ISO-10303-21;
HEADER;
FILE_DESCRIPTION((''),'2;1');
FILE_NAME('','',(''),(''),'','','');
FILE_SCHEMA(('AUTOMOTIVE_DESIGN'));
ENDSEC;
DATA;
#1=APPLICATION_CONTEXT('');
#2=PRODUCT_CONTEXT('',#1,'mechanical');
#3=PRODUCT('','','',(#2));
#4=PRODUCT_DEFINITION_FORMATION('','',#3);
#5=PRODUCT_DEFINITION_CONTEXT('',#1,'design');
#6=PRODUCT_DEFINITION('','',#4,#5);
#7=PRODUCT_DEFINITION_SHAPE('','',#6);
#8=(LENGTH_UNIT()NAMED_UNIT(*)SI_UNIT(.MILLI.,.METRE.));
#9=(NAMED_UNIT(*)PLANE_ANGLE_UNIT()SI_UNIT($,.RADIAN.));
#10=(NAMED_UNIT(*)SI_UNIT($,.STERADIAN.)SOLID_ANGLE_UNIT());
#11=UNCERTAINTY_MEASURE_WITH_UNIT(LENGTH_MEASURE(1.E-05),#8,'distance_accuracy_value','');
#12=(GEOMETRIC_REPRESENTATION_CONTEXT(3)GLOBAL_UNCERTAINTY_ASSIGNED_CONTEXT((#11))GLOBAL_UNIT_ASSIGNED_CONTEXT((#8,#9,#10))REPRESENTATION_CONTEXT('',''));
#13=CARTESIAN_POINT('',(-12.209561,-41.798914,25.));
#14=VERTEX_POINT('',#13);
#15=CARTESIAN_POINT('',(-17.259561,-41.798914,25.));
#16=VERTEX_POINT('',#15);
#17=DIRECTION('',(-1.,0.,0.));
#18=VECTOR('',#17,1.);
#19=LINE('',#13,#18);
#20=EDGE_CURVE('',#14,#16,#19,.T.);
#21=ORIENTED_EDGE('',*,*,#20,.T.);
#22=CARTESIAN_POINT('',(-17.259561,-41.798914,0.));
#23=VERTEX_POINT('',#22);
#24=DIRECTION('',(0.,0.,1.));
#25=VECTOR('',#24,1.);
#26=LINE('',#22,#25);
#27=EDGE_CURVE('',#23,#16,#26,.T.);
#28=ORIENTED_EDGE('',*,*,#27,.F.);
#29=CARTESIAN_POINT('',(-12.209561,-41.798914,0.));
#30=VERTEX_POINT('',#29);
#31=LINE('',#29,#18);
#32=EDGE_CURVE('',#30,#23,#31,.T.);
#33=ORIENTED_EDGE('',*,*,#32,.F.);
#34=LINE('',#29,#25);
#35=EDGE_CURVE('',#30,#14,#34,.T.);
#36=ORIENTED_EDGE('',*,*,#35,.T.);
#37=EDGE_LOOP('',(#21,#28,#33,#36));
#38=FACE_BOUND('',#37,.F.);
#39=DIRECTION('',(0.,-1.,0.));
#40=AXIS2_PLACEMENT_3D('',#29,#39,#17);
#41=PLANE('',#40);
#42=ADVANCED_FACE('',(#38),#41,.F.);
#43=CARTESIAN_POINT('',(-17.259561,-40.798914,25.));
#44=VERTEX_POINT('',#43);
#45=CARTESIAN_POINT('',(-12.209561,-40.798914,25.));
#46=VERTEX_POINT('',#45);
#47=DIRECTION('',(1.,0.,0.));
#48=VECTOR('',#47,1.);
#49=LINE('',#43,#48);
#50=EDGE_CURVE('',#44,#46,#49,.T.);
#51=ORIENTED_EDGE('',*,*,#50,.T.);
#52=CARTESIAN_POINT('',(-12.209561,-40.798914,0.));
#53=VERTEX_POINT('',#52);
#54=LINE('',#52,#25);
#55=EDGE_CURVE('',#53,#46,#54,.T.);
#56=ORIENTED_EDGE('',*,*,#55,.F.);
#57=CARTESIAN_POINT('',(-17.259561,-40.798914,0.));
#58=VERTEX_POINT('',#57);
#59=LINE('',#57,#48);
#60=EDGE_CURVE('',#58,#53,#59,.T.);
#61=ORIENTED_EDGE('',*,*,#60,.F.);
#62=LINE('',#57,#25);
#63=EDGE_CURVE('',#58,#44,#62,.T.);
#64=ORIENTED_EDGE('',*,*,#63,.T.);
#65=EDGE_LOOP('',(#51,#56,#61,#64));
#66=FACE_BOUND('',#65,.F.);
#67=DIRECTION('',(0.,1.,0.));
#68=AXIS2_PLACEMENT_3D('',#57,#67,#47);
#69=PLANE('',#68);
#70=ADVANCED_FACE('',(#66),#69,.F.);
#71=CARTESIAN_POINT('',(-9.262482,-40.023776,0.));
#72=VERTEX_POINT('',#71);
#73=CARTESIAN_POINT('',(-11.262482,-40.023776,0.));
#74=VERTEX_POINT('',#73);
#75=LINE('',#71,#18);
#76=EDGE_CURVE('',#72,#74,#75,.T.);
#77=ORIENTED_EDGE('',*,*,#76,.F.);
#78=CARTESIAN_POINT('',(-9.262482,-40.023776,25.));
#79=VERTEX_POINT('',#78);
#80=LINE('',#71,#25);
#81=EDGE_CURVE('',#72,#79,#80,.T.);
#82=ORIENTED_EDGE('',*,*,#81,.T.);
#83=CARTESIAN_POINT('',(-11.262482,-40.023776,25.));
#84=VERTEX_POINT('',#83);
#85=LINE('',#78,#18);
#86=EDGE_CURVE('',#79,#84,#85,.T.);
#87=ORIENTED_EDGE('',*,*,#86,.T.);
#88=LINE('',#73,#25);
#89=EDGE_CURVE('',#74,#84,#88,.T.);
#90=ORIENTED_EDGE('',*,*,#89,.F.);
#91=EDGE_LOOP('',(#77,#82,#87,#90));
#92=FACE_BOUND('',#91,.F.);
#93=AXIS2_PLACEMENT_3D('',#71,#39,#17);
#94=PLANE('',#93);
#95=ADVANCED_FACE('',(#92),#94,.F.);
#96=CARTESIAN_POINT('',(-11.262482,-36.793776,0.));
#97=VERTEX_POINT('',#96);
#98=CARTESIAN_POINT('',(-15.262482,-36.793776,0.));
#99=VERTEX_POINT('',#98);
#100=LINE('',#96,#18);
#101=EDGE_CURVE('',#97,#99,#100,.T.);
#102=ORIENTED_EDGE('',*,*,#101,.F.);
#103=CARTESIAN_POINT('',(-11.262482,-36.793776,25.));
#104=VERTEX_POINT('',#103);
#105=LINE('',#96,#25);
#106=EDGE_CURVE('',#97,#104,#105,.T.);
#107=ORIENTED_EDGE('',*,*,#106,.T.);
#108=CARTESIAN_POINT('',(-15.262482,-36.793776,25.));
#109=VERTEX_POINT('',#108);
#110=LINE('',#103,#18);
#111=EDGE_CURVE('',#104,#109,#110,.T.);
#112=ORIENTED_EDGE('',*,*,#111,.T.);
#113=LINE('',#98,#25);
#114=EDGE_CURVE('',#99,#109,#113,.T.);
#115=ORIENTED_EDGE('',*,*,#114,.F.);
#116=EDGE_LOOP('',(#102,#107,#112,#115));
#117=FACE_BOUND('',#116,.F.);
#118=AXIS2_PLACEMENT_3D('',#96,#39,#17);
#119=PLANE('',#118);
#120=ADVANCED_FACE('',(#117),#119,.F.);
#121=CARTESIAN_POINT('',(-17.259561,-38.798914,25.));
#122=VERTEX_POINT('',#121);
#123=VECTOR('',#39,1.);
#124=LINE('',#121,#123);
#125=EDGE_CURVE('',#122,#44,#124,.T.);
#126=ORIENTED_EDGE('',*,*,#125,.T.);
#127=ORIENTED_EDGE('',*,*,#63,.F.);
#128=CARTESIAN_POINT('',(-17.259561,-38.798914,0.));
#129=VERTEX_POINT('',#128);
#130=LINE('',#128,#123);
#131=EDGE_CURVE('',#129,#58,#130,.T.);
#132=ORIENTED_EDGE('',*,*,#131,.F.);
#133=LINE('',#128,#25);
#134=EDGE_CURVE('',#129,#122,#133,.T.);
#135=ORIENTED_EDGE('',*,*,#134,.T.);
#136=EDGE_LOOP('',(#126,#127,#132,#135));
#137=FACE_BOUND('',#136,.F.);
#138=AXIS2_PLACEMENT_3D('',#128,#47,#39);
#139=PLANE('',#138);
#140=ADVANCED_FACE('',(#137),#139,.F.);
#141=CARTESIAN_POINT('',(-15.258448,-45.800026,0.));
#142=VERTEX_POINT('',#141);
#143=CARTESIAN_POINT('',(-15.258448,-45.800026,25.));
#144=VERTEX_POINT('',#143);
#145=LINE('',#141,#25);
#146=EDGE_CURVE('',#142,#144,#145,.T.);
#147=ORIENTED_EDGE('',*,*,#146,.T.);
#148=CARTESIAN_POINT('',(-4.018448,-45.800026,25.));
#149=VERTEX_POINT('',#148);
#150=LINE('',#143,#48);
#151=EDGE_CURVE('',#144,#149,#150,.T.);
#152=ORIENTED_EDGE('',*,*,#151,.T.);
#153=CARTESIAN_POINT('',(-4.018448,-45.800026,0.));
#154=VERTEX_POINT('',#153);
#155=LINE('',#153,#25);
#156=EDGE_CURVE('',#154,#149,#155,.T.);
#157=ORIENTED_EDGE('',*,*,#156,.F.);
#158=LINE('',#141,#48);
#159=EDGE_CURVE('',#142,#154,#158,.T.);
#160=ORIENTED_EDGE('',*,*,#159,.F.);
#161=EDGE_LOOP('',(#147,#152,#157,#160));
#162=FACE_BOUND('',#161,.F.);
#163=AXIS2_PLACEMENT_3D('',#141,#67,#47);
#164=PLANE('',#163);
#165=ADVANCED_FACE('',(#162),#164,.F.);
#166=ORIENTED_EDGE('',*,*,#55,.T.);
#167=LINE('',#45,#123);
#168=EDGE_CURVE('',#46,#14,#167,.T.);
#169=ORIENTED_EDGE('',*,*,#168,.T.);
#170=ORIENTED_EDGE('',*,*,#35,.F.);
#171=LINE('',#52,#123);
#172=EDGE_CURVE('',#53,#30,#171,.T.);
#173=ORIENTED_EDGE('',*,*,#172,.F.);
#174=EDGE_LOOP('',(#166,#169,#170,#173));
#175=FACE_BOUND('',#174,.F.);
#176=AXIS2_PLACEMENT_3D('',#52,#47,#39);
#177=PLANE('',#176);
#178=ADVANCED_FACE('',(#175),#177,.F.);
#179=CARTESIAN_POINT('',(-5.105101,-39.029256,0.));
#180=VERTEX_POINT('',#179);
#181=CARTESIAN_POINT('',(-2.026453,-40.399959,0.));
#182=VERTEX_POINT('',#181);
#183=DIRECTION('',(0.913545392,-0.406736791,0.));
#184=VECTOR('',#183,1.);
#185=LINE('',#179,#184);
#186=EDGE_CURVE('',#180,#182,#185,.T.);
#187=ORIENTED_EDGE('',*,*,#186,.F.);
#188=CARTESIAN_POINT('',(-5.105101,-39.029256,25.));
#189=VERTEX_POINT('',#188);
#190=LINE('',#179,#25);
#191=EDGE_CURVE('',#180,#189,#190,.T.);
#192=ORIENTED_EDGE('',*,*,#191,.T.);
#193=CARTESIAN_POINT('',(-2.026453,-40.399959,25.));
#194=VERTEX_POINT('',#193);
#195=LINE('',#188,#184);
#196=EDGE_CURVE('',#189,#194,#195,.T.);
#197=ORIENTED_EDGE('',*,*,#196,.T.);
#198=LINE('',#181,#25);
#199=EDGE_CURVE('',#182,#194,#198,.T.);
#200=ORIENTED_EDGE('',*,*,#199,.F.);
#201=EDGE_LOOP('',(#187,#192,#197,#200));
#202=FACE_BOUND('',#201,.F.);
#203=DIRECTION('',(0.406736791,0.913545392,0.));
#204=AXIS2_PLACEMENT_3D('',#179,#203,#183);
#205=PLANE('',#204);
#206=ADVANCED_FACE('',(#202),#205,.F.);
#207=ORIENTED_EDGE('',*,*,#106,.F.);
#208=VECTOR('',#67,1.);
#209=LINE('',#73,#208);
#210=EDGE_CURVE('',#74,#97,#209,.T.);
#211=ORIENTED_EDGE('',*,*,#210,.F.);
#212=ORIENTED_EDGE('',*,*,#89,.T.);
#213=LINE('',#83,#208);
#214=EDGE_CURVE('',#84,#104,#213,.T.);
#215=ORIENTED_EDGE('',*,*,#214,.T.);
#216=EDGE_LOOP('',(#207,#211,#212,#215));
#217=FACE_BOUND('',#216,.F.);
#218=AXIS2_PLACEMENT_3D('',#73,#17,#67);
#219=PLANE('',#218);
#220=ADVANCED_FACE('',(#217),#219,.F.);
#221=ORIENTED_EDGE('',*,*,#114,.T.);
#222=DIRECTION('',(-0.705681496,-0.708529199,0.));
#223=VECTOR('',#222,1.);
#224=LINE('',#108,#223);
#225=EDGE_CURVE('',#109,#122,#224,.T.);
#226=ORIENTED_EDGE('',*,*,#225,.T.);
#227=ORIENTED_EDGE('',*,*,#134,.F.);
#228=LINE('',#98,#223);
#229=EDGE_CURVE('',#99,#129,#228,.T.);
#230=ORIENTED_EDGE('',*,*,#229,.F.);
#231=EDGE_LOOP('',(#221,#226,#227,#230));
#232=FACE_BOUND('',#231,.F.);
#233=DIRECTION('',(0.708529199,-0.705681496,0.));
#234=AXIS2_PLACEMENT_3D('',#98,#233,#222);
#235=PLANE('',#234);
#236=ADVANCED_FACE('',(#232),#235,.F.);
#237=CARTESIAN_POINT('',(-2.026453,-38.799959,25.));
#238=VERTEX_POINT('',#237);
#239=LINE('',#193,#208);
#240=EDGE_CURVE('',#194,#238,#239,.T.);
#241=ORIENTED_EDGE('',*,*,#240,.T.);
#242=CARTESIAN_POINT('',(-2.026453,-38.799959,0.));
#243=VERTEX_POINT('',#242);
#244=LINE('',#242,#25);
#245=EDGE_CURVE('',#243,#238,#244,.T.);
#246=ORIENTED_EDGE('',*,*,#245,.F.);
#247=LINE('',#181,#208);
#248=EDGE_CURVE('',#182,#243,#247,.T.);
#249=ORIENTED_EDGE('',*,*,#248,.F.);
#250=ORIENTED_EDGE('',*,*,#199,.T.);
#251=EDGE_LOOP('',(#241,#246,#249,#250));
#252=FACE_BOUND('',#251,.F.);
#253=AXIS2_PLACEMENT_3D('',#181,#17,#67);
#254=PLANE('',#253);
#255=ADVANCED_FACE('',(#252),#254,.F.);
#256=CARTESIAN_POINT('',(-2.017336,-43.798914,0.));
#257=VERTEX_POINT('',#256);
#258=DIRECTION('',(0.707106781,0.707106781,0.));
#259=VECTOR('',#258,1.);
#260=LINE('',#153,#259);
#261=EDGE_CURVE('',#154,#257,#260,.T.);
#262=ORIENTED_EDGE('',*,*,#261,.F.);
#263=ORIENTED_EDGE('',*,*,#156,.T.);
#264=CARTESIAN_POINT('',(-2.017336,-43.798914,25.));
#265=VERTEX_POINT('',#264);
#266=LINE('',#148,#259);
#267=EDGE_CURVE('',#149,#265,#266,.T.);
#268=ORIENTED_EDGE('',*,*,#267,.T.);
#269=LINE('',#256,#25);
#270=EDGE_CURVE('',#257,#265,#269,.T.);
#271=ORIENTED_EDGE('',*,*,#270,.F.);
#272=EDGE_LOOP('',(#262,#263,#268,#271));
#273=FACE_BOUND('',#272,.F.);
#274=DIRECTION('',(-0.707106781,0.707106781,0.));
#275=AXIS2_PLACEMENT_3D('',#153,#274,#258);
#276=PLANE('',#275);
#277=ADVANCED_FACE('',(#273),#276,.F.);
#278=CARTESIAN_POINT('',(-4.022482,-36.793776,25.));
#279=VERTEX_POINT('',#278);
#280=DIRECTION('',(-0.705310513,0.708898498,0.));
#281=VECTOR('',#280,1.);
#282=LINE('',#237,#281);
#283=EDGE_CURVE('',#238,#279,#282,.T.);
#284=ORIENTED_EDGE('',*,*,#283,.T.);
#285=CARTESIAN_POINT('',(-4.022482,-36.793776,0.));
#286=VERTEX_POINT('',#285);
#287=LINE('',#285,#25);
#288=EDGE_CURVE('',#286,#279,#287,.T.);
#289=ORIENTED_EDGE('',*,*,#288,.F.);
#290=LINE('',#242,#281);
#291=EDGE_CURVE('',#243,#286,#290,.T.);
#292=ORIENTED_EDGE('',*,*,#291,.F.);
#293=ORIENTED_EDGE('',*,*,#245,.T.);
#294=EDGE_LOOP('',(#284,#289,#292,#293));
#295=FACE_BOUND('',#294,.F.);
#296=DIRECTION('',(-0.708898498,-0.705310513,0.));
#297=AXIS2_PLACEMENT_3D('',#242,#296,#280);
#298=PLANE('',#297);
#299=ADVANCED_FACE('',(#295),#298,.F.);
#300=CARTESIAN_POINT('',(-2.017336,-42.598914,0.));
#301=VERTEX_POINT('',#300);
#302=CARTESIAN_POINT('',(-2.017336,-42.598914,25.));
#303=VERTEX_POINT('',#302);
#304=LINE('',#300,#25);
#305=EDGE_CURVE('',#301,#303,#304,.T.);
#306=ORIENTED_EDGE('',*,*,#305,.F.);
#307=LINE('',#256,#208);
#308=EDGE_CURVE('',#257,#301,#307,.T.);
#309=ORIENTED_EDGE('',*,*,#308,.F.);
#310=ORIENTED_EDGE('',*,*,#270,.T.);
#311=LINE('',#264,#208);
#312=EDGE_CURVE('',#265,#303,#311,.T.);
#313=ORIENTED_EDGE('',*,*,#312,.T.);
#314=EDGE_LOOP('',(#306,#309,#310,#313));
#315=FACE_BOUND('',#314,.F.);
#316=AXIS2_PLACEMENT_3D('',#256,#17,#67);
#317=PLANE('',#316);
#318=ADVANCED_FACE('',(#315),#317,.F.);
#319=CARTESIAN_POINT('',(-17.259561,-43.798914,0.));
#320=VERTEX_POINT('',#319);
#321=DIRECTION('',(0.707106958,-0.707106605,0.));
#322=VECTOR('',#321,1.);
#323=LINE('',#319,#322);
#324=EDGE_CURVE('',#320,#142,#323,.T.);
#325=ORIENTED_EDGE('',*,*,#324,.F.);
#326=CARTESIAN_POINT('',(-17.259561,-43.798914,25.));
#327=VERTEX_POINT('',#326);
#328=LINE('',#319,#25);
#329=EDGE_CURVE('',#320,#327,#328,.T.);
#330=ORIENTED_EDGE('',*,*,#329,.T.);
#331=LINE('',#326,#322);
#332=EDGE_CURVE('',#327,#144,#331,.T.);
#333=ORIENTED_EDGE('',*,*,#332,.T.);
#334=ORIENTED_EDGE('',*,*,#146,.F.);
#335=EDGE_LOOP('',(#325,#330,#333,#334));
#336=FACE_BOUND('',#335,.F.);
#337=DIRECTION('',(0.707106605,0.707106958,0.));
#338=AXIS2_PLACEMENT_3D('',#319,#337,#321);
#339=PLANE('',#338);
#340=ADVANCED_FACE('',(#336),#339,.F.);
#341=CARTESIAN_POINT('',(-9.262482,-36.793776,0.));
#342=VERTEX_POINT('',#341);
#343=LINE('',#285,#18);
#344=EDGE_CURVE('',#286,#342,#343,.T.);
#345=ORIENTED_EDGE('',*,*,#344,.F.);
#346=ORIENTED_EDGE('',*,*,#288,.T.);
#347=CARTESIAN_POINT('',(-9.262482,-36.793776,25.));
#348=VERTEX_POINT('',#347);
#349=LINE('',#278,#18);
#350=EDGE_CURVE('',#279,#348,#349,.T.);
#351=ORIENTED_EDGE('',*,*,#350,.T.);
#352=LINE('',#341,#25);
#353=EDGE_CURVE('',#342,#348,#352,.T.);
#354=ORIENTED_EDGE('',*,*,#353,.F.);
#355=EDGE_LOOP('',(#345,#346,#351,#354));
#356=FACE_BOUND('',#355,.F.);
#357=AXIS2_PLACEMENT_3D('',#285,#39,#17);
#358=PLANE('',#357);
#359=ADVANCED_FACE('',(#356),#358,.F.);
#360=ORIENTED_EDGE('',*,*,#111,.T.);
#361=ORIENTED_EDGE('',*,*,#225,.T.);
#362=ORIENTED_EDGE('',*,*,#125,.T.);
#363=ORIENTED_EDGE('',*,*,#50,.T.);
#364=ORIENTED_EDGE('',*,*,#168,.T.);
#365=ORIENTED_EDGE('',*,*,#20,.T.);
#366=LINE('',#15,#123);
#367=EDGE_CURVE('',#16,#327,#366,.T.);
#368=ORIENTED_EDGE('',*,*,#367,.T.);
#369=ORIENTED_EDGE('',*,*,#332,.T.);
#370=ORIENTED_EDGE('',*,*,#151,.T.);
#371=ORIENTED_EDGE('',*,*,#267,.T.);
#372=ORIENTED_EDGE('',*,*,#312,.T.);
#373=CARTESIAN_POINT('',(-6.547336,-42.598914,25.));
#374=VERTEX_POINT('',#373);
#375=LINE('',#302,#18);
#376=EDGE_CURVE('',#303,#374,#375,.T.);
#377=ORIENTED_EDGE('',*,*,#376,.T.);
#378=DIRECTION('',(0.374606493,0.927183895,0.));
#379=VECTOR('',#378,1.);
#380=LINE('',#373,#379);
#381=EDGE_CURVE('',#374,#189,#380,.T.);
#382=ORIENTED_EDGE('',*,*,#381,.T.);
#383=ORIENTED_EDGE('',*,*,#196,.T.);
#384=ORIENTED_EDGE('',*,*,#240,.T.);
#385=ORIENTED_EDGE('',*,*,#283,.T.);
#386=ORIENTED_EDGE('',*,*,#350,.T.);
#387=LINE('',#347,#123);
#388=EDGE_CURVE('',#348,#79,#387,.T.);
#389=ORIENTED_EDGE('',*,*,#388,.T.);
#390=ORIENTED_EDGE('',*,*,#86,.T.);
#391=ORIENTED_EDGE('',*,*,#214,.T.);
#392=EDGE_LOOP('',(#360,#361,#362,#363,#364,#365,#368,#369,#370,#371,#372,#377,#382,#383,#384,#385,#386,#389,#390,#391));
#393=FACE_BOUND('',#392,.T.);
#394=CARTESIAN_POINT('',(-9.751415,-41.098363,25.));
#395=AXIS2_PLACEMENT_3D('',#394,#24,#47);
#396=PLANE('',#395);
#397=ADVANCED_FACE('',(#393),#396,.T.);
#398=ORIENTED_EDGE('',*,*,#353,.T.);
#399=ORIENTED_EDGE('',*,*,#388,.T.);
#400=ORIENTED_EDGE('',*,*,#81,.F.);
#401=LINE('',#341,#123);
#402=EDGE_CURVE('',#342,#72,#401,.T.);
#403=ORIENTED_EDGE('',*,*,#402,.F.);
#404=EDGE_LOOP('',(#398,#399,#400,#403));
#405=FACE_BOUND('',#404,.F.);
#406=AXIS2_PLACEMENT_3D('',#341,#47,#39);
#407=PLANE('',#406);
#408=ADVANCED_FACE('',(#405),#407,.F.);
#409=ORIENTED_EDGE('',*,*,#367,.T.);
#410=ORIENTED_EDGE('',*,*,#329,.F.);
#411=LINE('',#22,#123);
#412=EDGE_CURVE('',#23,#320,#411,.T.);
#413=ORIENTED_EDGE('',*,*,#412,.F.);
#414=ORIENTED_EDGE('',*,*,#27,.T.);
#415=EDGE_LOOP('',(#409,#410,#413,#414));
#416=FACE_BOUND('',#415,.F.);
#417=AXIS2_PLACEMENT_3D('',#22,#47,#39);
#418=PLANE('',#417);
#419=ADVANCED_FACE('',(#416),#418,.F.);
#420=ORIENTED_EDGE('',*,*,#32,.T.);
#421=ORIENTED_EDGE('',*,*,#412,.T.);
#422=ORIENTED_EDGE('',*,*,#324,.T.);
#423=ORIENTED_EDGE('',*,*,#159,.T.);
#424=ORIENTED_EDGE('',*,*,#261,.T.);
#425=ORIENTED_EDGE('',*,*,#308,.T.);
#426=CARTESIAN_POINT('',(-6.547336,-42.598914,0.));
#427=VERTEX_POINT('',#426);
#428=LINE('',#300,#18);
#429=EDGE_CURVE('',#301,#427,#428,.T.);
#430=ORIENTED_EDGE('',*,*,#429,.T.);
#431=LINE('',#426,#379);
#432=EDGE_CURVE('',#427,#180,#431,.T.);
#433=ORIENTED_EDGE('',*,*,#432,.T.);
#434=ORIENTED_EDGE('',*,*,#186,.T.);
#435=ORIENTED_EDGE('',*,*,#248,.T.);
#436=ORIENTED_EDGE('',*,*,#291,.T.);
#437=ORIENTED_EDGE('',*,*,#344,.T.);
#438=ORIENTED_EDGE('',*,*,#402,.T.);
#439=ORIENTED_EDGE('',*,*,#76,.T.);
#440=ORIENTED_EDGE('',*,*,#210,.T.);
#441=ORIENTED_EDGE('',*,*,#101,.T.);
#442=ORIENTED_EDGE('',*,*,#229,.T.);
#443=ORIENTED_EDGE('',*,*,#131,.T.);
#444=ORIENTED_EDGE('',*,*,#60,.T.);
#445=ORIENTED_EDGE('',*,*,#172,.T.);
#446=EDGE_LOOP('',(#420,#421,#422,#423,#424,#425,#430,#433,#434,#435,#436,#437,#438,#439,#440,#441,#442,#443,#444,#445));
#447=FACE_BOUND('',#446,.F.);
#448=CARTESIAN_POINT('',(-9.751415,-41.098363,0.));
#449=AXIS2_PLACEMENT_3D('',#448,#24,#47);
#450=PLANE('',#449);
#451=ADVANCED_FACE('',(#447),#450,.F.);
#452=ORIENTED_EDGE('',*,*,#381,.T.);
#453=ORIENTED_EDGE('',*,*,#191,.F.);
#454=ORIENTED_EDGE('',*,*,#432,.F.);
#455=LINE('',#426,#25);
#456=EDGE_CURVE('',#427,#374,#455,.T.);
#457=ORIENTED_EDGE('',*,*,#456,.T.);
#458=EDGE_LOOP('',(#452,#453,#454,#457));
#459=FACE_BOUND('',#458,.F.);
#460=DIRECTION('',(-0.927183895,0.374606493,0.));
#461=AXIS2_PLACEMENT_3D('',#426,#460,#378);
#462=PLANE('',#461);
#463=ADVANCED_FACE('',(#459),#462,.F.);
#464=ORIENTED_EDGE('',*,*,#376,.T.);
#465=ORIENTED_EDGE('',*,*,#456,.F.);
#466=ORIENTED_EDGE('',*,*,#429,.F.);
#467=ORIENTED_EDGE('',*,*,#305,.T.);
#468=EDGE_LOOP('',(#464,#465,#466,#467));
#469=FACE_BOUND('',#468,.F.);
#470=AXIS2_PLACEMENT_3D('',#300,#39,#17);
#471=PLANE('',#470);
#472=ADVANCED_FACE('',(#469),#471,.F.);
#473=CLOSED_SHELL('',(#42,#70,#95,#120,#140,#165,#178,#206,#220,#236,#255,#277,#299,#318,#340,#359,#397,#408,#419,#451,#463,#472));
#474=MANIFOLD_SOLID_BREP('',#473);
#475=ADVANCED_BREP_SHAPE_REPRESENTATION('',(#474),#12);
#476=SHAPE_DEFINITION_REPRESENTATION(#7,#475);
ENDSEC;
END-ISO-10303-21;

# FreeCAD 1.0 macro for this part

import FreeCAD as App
import Part
import Sketcher
from FreeCAD import Vector
Q = App.Units.Quantity


def add_polygon(sketch, points):
    """Adds a closed chain of lines whose ends are joined by coincident constraints."""
    first, n = sketch.GeometryCount, len(points)
    for a, b in zip(points, points[1:] + points[:1]):
        sketch.addGeometry(Part.LineSegment(App.Vector(*a, 0), App.Vector(*b, 0)), False)
    for i in range(n):
        sketch.addConstraint(Sketcher.Constraint("Coincident", first + i, 2, first + (i + 1) % n, 1))

doc = App.newDocument("Part")
body = doc.addObject("PartDesign::Body", "Body")

# Sketch on XY plane
sketch1 = body.newObject("Sketcher::SketchObject", "Sketch")
sketch1.AttachmentSupport = (doc.getObject("XY_Plane"), [""])
sketch1.MapMode = "FlatFace"
add_polygon(sketch1, [(-17.3, -43.8), (-15.3, -45.8), (-4, -45.8), (-2, -43.8), (-2, -42.6), (-6.5, -42.6), (-5.1, -39), (-2, -40.4), (-2, -38.8), (-4, -36.8), (-9.3, -36.8), (-9.3, -40), (-11.3, -40), (-11.3, -36.8), (-15.3, -36.8), (-17.3, -38.8), (-17.3, -40.8), (-12.2, -40.8), (-12.2, -41.8), (-17.3, -41.8)])  # lines 0-19
sketch1.addConstraint([
    Sketcher.Constraint("Horizontal", 1),
    Sketcher.Constraint("Vertical", 3),
    Sketcher.Constraint("Horizontal", 4),
    Sketcher.Constraint("Vertical", 7),
    Sketcher.Constraint("Horizontal", 9),
    Sketcher.Constraint("Vertical", 10),
    Sketcher.Constraint("Horizontal", 11),
    Sketcher.Constraint("Vertical", 12),
    Sketcher.Constraint("Horizontal", 13),
    Sketcher.Constraint("Vertical", 15),
    Sketcher.Constraint("Horizontal", 16),
    Sketcher.Constraint("Vertical", 17),
    Sketcher.Constraint("Horizontal", 18),
    Sketcher.Constraint("Vertical", 19),
    Sketcher.Constraint("Perpendicular", 0, 2),
    Sketcher.Constraint("Horizontal", 9, 2, 12, 2),
    Sketcher.Constraint("Horizontal", 2, 2, 19, 2),
    Sketcher.Constraint("Vertical", 15, 2, 18, 2),
    Sketcher.Constraint("Equal", 11, 15),
    Sketcher.Constraint("Equal", 15, 19),
    Sketcher.Constraint("Equal", 0, 2),
    Sketcher.Constraint("Equal", 2, 8),
    Sketcher.Constraint("Equal", 8, 14),
    Sketcher.Constraint("DistanceX", 11, 2, 11, 1, 2.0),
    Sketcher.Constraint("DistanceX", 13, 2, 13, 1, 4.0),
    Sketcher.Constraint("DistanceY", 17, 2, 17, 1, 1.0),
    Sketcher.Constraint("Angle", 5, Q("68.000006 deg")),
    Sketcher.Constraint("Angle", 6, Q("-24.000009 deg")),
    Sketcher.Constraint("DistanceY", 3, 1, 3, 2, 1.2),
    Sketcher.Constraint("DistanceY", 7, 1, 7, 2, 1.6),
    Sketcher.Constraint("DistanceX", 1, 1, 1, 2, 11.24),
    Sketcher.Constraint("DistanceX", 4, 2, 4, 1, 4.53),
    Sketcher.Constraint("DistanceX", 9, 2, 9, 1, 5.24),
    Sketcher.Constraint("DistanceX", 16, 1, 16, 2, 5.05),
    Sketcher.Constraint("DistanceY", 10, 2, 10, 1, 3.23),
    Sketcher.Constraint("Distance", 0, 2.83),
    Sketcher.Constraint("Distance", 5, 3.85),
    Sketcher.Constraint("Distance", 6, 3.37),
    Sketcher.Constraint("DistanceX", 5, 2, -1, 1, 5.105101),
    Sketcher.Constraint("DistanceY", 6, 2, -1, 1, 40.399959),
])
pad1 = body.newObject("PartDesign::Pad", "Pad")
pad1.Profile = sketch1
pad1.Length = 25

doc.recompute()
